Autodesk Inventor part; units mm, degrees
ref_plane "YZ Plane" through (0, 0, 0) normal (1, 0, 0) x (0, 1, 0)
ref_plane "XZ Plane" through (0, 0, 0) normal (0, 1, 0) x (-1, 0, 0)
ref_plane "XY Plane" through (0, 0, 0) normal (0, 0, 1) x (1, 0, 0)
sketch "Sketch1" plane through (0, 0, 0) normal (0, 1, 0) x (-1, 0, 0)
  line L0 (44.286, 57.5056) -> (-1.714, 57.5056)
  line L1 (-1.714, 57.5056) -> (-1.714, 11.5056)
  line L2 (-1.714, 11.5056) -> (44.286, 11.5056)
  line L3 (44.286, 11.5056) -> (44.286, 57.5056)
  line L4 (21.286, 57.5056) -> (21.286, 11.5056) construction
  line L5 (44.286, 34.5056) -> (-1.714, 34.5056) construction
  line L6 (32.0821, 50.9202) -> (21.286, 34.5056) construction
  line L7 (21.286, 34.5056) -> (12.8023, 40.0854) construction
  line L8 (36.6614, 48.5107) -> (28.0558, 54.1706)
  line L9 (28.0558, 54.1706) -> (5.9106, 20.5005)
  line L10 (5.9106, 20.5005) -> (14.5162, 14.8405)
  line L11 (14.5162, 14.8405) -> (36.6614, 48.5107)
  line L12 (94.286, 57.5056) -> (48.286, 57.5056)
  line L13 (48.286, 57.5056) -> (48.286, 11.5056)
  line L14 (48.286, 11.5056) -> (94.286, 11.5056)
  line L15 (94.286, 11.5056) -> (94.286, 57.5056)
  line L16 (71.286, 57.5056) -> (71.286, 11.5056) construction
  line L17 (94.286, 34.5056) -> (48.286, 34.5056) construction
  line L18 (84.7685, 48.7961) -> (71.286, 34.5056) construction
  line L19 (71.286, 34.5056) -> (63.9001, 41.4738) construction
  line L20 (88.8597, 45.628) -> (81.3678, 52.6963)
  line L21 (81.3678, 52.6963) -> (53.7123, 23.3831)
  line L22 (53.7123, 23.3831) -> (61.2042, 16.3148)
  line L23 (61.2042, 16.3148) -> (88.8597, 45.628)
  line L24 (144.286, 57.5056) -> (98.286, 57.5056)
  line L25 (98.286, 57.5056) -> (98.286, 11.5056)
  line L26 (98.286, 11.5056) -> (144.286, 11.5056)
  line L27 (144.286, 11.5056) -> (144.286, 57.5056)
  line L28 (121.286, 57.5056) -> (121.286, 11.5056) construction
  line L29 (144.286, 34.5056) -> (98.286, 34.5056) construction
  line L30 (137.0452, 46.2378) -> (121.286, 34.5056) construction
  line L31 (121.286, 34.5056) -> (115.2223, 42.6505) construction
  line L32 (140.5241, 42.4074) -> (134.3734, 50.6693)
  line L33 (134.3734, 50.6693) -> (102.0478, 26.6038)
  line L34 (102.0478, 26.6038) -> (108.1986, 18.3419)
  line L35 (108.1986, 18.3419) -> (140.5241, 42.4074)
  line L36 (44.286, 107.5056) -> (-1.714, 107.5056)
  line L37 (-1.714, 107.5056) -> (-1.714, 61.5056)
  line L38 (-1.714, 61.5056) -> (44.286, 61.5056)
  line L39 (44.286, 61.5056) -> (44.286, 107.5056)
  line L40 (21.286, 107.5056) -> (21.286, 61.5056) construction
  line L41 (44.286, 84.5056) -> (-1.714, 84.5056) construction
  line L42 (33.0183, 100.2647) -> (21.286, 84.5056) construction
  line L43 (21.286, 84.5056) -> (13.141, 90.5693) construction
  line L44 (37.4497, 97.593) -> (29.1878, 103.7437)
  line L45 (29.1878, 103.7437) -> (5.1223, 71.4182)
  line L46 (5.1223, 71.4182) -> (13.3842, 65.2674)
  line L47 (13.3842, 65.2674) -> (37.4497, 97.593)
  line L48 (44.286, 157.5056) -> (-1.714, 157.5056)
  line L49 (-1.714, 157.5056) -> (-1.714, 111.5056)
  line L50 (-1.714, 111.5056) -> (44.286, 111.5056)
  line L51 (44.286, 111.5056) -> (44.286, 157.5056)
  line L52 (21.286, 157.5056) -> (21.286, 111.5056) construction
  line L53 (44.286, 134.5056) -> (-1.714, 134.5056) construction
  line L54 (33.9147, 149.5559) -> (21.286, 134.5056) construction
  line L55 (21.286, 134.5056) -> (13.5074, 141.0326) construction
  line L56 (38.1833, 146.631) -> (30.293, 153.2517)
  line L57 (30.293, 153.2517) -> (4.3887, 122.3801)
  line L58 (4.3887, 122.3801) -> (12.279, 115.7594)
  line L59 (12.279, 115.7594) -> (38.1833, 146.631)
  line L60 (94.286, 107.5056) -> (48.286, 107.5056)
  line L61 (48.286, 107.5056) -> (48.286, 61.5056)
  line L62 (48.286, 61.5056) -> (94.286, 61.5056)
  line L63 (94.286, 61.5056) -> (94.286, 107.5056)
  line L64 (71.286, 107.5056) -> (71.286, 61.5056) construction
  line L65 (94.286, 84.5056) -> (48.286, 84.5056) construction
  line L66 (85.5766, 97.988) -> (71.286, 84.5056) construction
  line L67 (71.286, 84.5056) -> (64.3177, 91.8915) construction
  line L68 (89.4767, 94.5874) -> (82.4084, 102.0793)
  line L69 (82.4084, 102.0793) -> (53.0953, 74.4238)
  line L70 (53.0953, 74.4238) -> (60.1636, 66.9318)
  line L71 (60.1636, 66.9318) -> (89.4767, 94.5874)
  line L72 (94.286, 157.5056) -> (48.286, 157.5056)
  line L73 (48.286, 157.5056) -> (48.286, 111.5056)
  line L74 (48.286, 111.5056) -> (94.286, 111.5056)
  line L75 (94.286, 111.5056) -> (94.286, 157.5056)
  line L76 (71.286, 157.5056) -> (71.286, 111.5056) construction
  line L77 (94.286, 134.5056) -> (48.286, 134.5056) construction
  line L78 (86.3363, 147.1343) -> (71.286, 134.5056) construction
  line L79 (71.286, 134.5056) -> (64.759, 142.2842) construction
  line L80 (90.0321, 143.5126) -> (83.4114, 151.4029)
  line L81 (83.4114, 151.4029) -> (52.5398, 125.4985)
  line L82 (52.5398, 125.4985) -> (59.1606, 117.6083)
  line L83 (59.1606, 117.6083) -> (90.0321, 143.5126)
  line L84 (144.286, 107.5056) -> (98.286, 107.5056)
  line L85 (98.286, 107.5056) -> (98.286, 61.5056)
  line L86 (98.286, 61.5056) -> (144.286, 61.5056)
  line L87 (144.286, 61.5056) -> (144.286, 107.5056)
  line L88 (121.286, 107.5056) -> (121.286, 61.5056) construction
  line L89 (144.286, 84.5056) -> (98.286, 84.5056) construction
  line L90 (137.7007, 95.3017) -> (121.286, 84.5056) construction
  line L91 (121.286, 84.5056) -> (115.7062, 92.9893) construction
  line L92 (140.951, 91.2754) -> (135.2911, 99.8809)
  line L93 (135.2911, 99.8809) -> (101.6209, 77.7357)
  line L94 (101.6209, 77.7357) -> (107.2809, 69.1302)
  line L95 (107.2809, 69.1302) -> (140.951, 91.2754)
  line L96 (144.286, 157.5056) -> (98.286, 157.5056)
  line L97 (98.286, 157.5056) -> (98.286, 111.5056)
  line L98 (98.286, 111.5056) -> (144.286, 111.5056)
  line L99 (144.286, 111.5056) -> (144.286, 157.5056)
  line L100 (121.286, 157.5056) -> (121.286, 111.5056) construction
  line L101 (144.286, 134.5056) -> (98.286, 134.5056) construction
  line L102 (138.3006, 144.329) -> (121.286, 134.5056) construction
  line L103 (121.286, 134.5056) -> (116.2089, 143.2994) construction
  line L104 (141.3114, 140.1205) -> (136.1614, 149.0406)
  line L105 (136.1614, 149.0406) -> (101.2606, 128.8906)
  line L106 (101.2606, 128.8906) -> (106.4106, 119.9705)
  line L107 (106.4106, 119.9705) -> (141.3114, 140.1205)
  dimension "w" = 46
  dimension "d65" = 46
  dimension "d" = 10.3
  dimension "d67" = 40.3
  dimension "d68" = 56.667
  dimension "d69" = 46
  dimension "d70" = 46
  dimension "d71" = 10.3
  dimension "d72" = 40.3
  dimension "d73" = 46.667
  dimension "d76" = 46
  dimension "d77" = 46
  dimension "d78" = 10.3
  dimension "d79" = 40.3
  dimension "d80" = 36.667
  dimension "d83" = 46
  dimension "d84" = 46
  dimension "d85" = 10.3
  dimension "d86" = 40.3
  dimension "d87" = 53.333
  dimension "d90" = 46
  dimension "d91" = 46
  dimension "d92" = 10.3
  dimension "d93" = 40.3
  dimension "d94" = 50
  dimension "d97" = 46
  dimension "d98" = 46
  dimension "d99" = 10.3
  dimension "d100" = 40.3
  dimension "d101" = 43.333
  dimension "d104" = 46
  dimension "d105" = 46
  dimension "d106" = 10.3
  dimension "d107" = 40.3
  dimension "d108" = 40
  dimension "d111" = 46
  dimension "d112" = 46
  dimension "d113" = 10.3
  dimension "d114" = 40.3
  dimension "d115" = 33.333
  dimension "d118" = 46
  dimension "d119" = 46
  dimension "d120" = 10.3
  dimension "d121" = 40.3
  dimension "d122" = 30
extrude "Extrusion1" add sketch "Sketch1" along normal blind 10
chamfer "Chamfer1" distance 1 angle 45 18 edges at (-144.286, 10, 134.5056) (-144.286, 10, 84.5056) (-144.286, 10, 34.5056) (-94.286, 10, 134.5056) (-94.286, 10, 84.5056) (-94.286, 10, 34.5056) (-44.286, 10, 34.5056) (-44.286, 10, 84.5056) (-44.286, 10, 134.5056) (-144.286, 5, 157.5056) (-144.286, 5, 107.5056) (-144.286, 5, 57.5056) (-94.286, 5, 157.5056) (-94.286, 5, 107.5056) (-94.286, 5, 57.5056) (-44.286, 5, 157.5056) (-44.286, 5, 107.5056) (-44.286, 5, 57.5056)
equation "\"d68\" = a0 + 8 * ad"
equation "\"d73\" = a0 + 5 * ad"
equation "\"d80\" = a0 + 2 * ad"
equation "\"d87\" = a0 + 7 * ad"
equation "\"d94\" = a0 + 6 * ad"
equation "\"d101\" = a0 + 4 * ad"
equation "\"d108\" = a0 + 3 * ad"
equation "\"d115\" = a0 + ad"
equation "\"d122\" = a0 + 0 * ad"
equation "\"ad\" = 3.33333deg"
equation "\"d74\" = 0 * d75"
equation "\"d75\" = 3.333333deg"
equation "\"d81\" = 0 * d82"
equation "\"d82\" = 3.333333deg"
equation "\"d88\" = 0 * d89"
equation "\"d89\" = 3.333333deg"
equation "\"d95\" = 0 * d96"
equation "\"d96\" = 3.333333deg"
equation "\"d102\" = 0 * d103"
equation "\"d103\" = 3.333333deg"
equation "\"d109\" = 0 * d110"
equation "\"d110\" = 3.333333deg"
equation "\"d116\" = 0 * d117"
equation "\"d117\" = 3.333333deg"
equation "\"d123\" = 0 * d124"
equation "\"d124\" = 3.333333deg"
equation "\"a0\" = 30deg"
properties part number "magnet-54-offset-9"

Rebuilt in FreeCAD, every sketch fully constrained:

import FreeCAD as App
import Part
import Sketcher
from FreeCAD import Vector
Q = App.Units.Quantity


def edges_at(feature, points):
    """Names of the edges that pass closest to the given points."""
    edges = feature.Shape.Edges
    near = lambda p: min(range(len(edges)), key=lambda i: edges[i].distToShape(Part.Vertex(*p))[0])
    return sorted({f"Edge{near(p) + 1}" for p in points})


def add_polygon(sketch, points):
    """Adds a closed chain of lines whose ends are joined by coincident constraints."""
    first, n = sketch.GeometryCount, len(points)
    for a, b in zip(points, points[1:] + points[:1]):
        sketch.addGeometry(Part.LineSegment(App.Vector(*a, 0), App.Vector(*b, 0)), False)
    for i in range(n):
        sketch.addConstraint(Sketcher.Constraint("Coincident", first + i, 2, first + (i + 1) % n, 1))

doc = App.newDocument("Part")
body = doc.addObject("PartDesign::Body", "Body")
body.AllowCompound = True

sketch1 = body.newObject("Sketcher::SketchObject", "Sketch")
sketch1.AttachmentSupport = (doc.getObject("XZ_Plane"), [""])
sketch1.MapMode = "FlatFace"
add_polygon(sketch1, [(-44, 12), (-44, 58), (2, 58), (2, 12)])
add_polygon(sketch1, [(-28, 54), (-37, 49), (-15, 15), (-6, 21)])
add_polygon(sketch1, [(-94, 12), (-94, 58), (-48, 58), (-48, 12)])
add_polygon(sketch1, [(-81, 53), (-89, 46), (-61, 16), (-54, 23)])
add_polygon(sketch1, [(-144, 12), (-144, 58), (-98, 58), (-98, 12)])
add_polygon(sketch1, [(-134, 51), (-141, 42), (-108, 18), (-102, 27)])
add_polygon(sketch1, [(-44, 62), (-44, 108), (2, 108), (2, 62)])
add_polygon(sketch1, [(-29, 104), (-37, 98), (-13, 65), (-5, 71)])
add_polygon(sketch1, [(-44, 112), (-44, 158), (2, 158), (2, 112)])
add_polygon(sketch1, [(-30, 153), (-38, 147), (-12, 116), (-4, 122)])
add_polygon(sketch1, [(-94, 62), (-94, 108), (-48, 108), (-48, 62)])
add_polygon(sketch1, [(-82, 102), (-89, 95), (-60, 67), (-53, 74)])
add_polygon(sketch1, [(-94, 112), (-94, 158), (-48, 158), (-48, 112)])
add_polygon(sketch1, [(-83, 151), (-90, 144), (-59, 118), (-53, 125)])
add_polygon(sketch1, [(-144, 62), (-144, 108), (-98, 108), (-98, 62)])
add_polygon(sketch1, [(-135, 100), (-141, 91), (-107, 69), (-102, 78)])
add_polygon(sketch1, [(-144, 112), (-144, 158), (-98, 158), (-98, 112)])
add_polygon(sketch1, [(-136, 149), (-141, 140), (-106, 120), (-101, 129)])
sketch1.addConstraint([
    Sketcher.Constraint("Vertical", 0),
    Sketcher.Constraint("Horizontal", 1),
    Sketcher.Constraint("Vertical", 2),
    Sketcher.Constraint("Horizontal", 3),
    Sketcher.Constraint("Vertical", 8),
    Sketcher.Constraint("Horizontal", 9),
    Sketcher.Constraint("Vertical", 10),
    Sketcher.Constraint("Horizontal", 11),
    Sketcher.Constraint("Vertical", 16),
    Sketcher.Constraint("Horizontal", 17),
    Sketcher.Constraint("Vertical", 18),
    Sketcher.Constraint("Horizontal", 19),
    Sketcher.Constraint("Vertical", 24),
    Sketcher.Constraint("Horizontal", 25),
    Sketcher.Constraint("Vertical", 26),
    Sketcher.Constraint("Horizontal", 27),
    Sketcher.Constraint("Vertical", 32),
    Sketcher.Constraint("Horizontal", 33),
    Sketcher.Constraint("Vertical", 34),
    Sketcher.Constraint("Horizontal", 35),
    Sketcher.Constraint("Vertical", 40),
    Sketcher.Constraint("Horizontal", 41),
    Sketcher.Constraint("Vertical", 42),
    Sketcher.Constraint("Horizontal", 43),
    Sketcher.Constraint("Vertical", 48),
    Sketcher.Constraint("Horizontal", 49),
    Sketcher.Constraint("Vertical", 50),
    Sketcher.Constraint("Horizontal", 51),
    Sketcher.Constraint("Vertical", 56),
    Sketcher.Constraint("Horizontal", 57),
    Sketcher.Constraint("Vertical", 58),
    Sketcher.Constraint("Horizontal", 59),
    Sketcher.Constraint("Vertical", 64),
    Sketcher.Constraint("Horizontal", 65),
    Sketcher.Constraint("Vertical", 66),
    Sketcher.Constraint("Horizontal", 67),
    Sketcher.Constraint("Perpendicular", 4, 5),
    Sketcher.Constraint("Perpendicular", 5, 6),
    Sketcher.Constraint("Perpendicular", 6, 7),
    Sketcher.Constraint("Perpendicular", 12, 13),
    Sketcher.Constraint("Perpendicular", 13, 14),
    Sketcher.Constraint("Perpendicular", 14, 15),
    Sketcher.Constraint("Perpendicular", 20, 21),
    Sketcher.Constraint("Perpendicular", 21, 22),
    Sketcher.Constraint("Perpendicular", 22, 23),
    Sketcher.Constraint("Perpendicular", 28, 29),
    Sketcher.Constraint("Perpendicular", 29, 30),
    Sketcher.Constraint("Perpendicular", 30, 31),
    Sketcher.Constraint("Perpendicular", 36, 37),
    Sketcher.Constraint("Perpendicular", 37, 38),
    Sketcher.Constraint("Perpendicular", 38, 39),
    Sketcher.Constraint("Perpendicular", 44, 45),
    Sketcher.Constraint("Perpendicular", 45, 46),
    Sketcher.Constraint("Perpendicular", 46, 47),
    Sketcher.Constraint("Perpendicular", 52, 53),
    Sketcher.Constraint("Perpendicular", 53, 54),
    Sketcher.Constraint("Perpendicular", 54, 55),
    Sketcher.Constraint("Perpendicular", 60, 61),
    Sketcher.Constraint("Perpendicular", 61, 62),
    Sketcher.Constraint("Perpendicular", 62, 63),
    Sketcher.Constraint("Perpendicular", 68, 69),
    Sketcher.Constraint("Perpendicular", 69, 70),
    Sketcher.Constraint("Perpendicular", 70, 71),
    Sketcher.Constraint("Horizontal", 1, 2, 8, 2),
    Sketcher.Constraint("Horizontal", 3, 2, 10, 2),
    Sketcher.Constraint("Horizontal", 9, 2, 16, 2),
    Sketcher.Constraint("Horizontal", 11, 2, 18, 2),
    Sketcher.Constraint("Horizontal", 25, 2, 40, 2),
    Sketcher.Constraint("Horizontal", 27, 2, 42, 2),
    Sketcher.Constraint("Horizontal", 33, 2, 48, 2),
    Sketcher.Constraint("Horizontal", 35, 2, 50, 2),
    Sketcher.Constraint("Horizontal", 41, 2, 56, 2),
    Sketcher.Constraint("Horizontal", 43, 2, 58, 2),
    Sketcher.Constraint("Horizontal", 49, 2, 64, 2),
    Sketcher.Constraint("Horizontal", 51, 2, 66, 2),
    Sketcher.Constraint("Vertical", 3, 2, 24, 2),
    Sketcher.Constraint("Vertical", 2, 2, 25, 2),
    Sketcher.Constraint("Vertical", 27, 2, 32, 2),
    Sketcher.Constraint("Vertical", 26, 2, 33, 2),
    Sketcher.Constraint("Vertical", 11, 2, 40, 2),
    Sketcher.Constraint("Vertical", 10, 2, 41, 2),
    Sketcher.Constraint("Vertical", 43, 2, 48, 2),
    Sketcher.Constraint("Vertical", 42, 2, 49, 2),
    Sketcher.Constraint("Vertical", 19, 2, 56, 2),
    Sketcher.Constraint("Vertical", 18, 2, 57, 2),
    Sketcher.Constraint("Vertical", 59, 2, 64, 2),
    Sketcher.Constraint("Vertical", 58, 2, 65, 2),
    Sketcher.Constraint("Equal", 3, 9),
    Sketcher.Constraint("Equal", 11, 17),
    Sketcher.Constraint("Equal", 67, 0),
    Sketcher.Constraint("Equal", 18, 24),
    Sketcher.Constraint("Equal", 26, 32),
    Sketcher.Constraint("Equal", 6, 12),
    Sketcher.Constraint("Equal", 7, 13),
    Sketcher.Constraint("Equal", 14, 20),
    Sketcher.Constraint("Equal", 15, 21),
    Sketcher.Constraint("Equal", 22, 28),
    Sketcher.Constraint("Equal", 23, 29),
    Sketcher.Constraint("Equal", 30, 36),
    Sketcher.Constraint("Equal", 31, 37),
    Sketcher.Constraint("Equal", 38, 44),
    Sketcher.Constraint("Equal", 39, 45),
    Sketcher.Constraint("Equal", 46, 52),
    Sketcher.Constraint("Equal", 47, 53),
    Sketcher.Constraint("Equal", 54, 60),
    Sketcher.Constraint("Equal", 55, 61),
    Sketcher.Constraint("Equal", 62, 68),
    Sketcher.Constraint("Equal", 63, 69),
    Sketcher.Constraint("DistanceX", 1, 1, 1, 2, 46.0),
    Sketcher.Constraint("Angle", 37, Q("-50 deg")),
    Sketcher.Constraint("Angle", 53, Q("-40 deg")),
    Sketcher.Constraint("Angle", 69, Q("-30 deg")),
    Sketcher.Constraint("Distance", 4, 10.3),
    Sketcher.Constraint("Distance", 5, 40.3),
    Sketcher.Constraint("DistanceY", -1, 1, 38, 2, 122.38),
    Sketcher.Constraint("DistanceX", 0, 2, -1, 1, 44.286),
    Sketcher.Constraint("DistanceX", 8, 2, -1, 1, 94.286),
    Sketcher.Constraint("DistanceY", -1, 1, 12, 2, 45.628),
    Sketcher.Constraint("DistanceY", -1, 1, 14, 2, 23.383),
    Sketcher.Constraint("DistanceX", 16, 2, -1, 1, 144.286),
    Sketcher.Constraint("DistanceX", 20, 2, -1, 1, 140.524),
    Sketcher.Constraint("DistanceY", -1, 1, 21, 2, 18.342),
    Sketcher.Constraint("DistanceY", -1, 1, 28, 2, 97.593),
    Sketcher.Constraint("DistanceX", 37, 2, -1, 1, 12.279),
    Sketcher.Constraint("DistanceX", 52, 2, -1, 1, 90.032),
    Sketcher.Constraint("DistanceY", -1, 1, 55, 2, 151.403),
    Sketcher.Constraint("DistanceX", 60, 2, -1, 1, 140.951),
    Sketcher.Constraint("DistanceX", 61, 2, -1, 1, 107.281),
    Sketcher.Constraint("DistanceY", -1, 1, 63, 2, 99.881),
    Sketcher.Constraint("DistanceY", -1, 1, 0, 2, 57.5056),
    Sketcher.Constraint("DistanceX", 4, 2, -1, 1, 36.6614),
    Sketcher.Constraint("DistanceY", -1, 1, 4, 2, 48.5107),
    Sketcher.Constraint("DistanceX", 5, 2, -1, 1, 14.5162),
    Sketcher.Constraint("DistanceX", 12, 2, -1, 1, 88.8597),
    Sketcher.Constraint("DistanceY", -1, 1, 20, 2, 42.4074),
    Sketcher.Constraint("DistanceY", -1, 1, 24, 2, 107.5056),
    Sketcher.Constraint("DistanceX", 28, 2, -1, 1, 37.4497),
    Sketcher.Constraint("DistanceX", 29, 2, -1, 1, 13.3842),
    Sketcher.Constraint("DistanceY", -1, 1, 32, 2, 157.5056),
    Sketcher.Constraint("DistanceX", 44, 2, -1, 1, 89.4767),
    Sketcher.Constraint("DistanceY", -1, 1, 44, 2, 94.5874),
    Sketcher.Constraint("DistanceX", 45, 2, -1, 1, 60.1636),
    Sketcher.Constraint("DistanceX", 68, 2, -1, 1, 141.3114),
    Sketcher.Constraint("DistanceY", -1, 1, 68, 2, 140.1205),
])
pad1 = body.newObject("PartDesign::Pad", "Pad")
pad1.Profile = sketch1
pad1.Length = 10
pad1.Reversed = True
doc.recompute()

chamfer = body.newObject("PartDesign::Chamfer", "Chamfer")
chamfer.Base = (pad1, edges_at(pad1, [
    (-144.286, 10, 134.506),
    (-144.286, 10, 84.506),
    (-144.286, 10, 34.506),
    (-94.286, 10, 134.506),
    (-94.286, 10, 84.506),
    (-94.286, 10, 34.506),
    (-44.286, 10, 34.506),
    (-44.286, 10, 84.506),
    (-44.286, 10, 134.506),
    (-144.286, 5, 157.506),
    (-144.286, 5, 107.506),
    (-144.286, 5, 57.506),
    (-94.286, 5, 157.506),
    (-94.286, 5, 107.506),
    (-94.286, 5, 57.506),
    (-44.286, 5, 157.506),
    (-44.286, 5, 107.506),
    (-44.286, 5, 57.506),
]))
chamfer.Size = 1

doc.recompute()
